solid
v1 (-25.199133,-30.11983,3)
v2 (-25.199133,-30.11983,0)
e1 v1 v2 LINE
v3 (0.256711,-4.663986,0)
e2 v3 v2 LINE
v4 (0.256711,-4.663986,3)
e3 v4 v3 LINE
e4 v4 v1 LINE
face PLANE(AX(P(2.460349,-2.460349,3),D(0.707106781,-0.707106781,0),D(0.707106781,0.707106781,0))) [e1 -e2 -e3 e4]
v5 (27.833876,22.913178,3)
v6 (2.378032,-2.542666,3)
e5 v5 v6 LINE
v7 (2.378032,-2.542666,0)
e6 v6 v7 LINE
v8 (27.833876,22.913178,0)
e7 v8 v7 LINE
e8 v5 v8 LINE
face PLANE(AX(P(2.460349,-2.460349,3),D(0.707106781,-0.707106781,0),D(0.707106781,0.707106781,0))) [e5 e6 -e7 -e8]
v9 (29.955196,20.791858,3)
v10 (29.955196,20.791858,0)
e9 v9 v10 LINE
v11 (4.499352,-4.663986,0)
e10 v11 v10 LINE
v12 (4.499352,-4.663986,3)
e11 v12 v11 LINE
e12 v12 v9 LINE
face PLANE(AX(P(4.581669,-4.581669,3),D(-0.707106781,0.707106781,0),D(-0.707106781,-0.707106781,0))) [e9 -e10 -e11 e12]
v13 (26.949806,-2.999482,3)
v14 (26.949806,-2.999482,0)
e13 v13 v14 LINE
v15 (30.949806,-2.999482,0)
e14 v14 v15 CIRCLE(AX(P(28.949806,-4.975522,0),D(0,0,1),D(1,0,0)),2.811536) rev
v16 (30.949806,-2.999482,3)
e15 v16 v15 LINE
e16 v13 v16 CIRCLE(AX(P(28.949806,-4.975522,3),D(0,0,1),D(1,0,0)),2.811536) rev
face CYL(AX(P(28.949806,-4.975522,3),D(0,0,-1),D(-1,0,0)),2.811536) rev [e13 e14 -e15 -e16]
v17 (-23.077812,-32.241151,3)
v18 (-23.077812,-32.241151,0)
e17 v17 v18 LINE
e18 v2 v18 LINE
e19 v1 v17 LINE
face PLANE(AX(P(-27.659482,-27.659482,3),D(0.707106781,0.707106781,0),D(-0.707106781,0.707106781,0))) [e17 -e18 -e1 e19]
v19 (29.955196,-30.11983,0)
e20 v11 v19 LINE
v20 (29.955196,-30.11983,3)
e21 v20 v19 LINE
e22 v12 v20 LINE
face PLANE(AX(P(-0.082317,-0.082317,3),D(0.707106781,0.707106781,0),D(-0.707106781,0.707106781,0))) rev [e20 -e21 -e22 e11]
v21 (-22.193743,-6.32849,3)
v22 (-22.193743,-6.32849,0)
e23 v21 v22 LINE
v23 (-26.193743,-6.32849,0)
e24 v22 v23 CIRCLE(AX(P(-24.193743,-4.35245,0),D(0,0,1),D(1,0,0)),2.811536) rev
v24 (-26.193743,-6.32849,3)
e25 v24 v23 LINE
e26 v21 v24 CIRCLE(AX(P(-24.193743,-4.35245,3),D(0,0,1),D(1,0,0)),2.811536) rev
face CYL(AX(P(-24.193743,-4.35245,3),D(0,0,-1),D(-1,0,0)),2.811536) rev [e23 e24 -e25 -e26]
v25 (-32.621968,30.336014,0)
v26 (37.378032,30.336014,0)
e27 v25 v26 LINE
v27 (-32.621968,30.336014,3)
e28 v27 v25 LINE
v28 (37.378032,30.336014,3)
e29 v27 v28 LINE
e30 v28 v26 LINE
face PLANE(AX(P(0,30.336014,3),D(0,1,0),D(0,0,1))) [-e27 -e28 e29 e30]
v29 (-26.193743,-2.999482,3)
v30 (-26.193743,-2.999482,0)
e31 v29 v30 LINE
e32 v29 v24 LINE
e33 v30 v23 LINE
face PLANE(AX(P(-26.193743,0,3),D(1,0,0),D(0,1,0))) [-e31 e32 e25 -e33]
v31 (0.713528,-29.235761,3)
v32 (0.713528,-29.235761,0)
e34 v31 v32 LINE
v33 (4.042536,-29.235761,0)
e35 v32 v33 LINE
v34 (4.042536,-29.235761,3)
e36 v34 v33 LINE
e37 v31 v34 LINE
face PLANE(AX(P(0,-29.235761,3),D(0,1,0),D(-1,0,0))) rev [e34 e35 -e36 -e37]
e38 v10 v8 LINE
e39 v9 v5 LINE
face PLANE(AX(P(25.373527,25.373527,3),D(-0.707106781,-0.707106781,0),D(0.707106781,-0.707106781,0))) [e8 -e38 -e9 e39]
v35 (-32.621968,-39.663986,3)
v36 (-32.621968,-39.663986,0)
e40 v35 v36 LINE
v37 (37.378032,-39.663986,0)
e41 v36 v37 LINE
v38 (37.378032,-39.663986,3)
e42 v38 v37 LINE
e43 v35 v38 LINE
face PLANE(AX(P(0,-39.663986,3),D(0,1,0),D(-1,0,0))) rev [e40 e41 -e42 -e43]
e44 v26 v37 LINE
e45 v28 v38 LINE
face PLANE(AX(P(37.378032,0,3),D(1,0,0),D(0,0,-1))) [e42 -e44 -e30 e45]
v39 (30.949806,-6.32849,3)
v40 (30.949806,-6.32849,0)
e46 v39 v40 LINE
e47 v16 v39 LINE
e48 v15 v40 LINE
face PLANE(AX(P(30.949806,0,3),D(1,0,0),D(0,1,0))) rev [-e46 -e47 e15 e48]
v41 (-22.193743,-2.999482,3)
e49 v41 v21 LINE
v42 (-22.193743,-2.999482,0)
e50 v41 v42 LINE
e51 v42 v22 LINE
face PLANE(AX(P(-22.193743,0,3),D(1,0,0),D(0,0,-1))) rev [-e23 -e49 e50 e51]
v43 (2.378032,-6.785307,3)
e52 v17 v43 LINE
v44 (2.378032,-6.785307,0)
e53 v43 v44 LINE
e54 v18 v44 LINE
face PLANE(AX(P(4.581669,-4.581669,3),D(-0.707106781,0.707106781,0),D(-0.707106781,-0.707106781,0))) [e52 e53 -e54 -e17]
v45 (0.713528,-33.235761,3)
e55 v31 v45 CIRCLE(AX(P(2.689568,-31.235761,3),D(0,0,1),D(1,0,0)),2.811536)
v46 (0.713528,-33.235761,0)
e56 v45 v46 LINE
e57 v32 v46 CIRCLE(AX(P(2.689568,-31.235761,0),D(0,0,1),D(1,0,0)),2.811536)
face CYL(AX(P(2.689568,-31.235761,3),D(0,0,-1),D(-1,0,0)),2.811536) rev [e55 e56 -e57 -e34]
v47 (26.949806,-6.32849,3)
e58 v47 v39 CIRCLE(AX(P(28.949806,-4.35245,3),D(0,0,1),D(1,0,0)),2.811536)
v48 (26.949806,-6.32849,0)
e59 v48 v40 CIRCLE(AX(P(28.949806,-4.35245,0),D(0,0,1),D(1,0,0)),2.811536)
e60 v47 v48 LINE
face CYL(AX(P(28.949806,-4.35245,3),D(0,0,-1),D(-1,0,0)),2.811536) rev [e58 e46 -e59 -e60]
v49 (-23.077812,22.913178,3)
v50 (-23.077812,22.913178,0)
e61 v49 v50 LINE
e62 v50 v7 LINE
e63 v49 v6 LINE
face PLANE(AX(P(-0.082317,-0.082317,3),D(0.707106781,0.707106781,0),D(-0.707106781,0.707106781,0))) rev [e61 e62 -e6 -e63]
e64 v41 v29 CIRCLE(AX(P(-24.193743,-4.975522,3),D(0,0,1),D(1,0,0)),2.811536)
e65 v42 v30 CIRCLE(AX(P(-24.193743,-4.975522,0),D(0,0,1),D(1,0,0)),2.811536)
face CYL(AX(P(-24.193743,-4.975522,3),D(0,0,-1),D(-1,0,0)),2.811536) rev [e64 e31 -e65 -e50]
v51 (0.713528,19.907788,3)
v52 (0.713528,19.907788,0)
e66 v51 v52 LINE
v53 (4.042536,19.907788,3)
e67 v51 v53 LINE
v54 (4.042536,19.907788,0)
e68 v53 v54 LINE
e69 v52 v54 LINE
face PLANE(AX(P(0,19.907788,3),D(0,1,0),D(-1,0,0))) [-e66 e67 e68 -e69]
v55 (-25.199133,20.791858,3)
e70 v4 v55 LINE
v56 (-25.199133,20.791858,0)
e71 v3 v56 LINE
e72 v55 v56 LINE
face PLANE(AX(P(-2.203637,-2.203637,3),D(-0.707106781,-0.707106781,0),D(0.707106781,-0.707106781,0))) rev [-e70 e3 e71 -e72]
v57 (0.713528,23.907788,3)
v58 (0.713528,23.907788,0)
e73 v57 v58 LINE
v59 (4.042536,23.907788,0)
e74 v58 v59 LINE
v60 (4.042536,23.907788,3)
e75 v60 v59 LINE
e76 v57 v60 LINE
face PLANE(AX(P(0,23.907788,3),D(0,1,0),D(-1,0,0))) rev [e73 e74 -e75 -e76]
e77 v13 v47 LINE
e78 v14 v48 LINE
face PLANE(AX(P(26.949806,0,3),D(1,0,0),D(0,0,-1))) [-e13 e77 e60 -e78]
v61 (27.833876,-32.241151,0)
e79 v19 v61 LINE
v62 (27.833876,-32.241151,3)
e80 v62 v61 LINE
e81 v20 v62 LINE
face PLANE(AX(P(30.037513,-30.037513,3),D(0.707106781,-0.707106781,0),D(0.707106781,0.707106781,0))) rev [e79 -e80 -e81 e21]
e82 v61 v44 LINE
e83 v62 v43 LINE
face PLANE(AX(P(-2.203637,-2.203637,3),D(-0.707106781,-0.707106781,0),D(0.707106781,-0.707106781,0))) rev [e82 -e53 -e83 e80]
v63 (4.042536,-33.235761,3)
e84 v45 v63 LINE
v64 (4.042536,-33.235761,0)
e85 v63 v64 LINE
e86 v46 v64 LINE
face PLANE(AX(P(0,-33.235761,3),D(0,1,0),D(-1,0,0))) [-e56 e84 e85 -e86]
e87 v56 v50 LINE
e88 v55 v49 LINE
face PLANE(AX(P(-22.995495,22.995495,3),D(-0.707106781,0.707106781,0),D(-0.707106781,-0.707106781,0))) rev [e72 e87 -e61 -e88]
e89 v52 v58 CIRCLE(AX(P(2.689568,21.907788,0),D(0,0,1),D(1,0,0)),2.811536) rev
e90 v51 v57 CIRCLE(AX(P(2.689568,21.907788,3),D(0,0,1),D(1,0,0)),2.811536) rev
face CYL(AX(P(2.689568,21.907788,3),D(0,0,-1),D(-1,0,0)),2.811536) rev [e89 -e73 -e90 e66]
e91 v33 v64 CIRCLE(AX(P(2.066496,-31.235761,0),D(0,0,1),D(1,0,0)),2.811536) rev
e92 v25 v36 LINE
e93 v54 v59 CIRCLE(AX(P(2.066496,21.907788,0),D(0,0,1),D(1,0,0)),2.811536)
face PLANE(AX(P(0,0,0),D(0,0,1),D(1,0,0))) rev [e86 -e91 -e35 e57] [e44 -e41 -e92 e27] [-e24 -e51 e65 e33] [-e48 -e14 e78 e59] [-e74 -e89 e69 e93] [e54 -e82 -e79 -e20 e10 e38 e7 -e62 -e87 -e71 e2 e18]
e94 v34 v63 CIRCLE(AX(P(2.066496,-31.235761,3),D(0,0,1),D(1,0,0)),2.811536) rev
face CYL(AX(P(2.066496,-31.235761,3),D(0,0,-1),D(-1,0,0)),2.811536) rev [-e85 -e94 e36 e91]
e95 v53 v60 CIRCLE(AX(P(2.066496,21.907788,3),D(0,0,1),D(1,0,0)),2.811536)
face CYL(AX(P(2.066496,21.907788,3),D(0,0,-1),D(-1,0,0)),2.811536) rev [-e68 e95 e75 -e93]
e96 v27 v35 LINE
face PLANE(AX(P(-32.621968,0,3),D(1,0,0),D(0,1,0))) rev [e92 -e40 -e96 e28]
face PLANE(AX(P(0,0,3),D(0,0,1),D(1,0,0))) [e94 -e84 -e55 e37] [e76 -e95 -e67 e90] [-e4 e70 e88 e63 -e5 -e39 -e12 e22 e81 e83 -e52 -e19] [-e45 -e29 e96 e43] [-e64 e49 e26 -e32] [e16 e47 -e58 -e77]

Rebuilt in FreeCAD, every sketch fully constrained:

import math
import FreeCAD as App
import Part
import Sketcher
Q = App.Units.Quantity


def add_polygon(sketch, points):
    """Adds a closed chain of lines whose ends are joined by coincident constraints."""
    first, n = sketch.GeometryCount, len(points)
    for a, b in zip(points, points[1:] + points[:1]):
        sketch.addGeometry(Part.LineSegment(App.Vector(*a, 0), App.Vector(*b, 0)), False)
    for i in range(n):
        sketch.addConstraint(Sketcher.Constraint("Coincident", first + i, 2, first + (i + 1) % n, 1))

doc = App.newDocument("Part")
body = doc.addObject("PartDesign::Body", "Body")

# Sketch on XY plane
sketch1 = body.newObject("Sketcher::SketchObject", "Sketch")
sketch1.AttachmentSupport = (doc.getObject("XY_Plane"), [""])
sketch1.MapMode = "FlatFace"
add_polygon(sketch1, [(-32.6, 30.3), (-32.6, -39.7), (37.4, -39.7), (37.4, 30.3)])  # lines 0-3
sketch1.addGeometry(Part.ArcOfCircle(Part.Circle(App.Vector(2.1, -31.2, 0), App.Vector(0, 0, 1), 2.8), math.radians(-45), math.radians(45)), False)  # 4
sketch1.addGeometry(Part.LineSegment(App.Vector(4, -33.2, 0), App.Vector(0.7, -33.2, 0)), False)  # 5
sketch1.addGeometry(Part.ArcOfCircle(Part.Circle(App.Vector(2.7, -31.2, 0), App.Vector(0, 0, 1), 2.8), math.radians(135), math.radians(225)), False)  # 6
sketch1.addGeometry(Part.LineSegment(App.Vector(0.7, -29.2, 0), App.Vector(4, -29.2, 0)), False)  # 7
add_polygon(sketch1, [(-25.2, -30.1), (0.3, -4.7), (-25.2, 20.8), (-23.1, 22.9), (2.4, -2.5), (27.8, 22.9), (30, 20.8), (4.5, -4.7), (30, -30.1), (27.8, -32.2), (2.4, -6.8), (-23.1, -32.2)])  # lines 8-19
sketch1.addGeometry(Part.LineSegment(App.Vector(-26.2, -6.3, 0), App.Vector(-26.2, -3, 0)), False)  # 20
sketch1.addGeometry(Part.ArcOfCircle(Part.Circle(App.Vector(-24.2, -5, 0), App.Vector(0, 0, 1), 2.8), math.radians(45), math.radians(135)), False)  # 21
sketch1.addGeometry(Part.LineSegment(App.Vector(-22.2, -3, 0), App.Vector(-22.2, -6.3, 0)), False)  # 22
sketch1.addGeometry(Part.ArcOfCircle(Part.Circle(App.Vector(-24.2, -4.4, 0), App.Vector(0, 0, 1), 2.8), math.radians(-135), math.radians(-45)), False)  # 23
sketch1.addGeometry(Part.LineSegment(App.Vector(4, 19.9, 0), App.Vector(0.7, 19.9, 0)), False)  # 24
sketch1.addGeometry(Part.ArcOfCircle(Part.Circle(App.Vector(2.7, 21.9, 0), App.Vector(0, 0, 1), 2.8), math.radians(135), math.radians(225)), False)  # 25
sketch1.addGeometry(Part.LineSegment(App.Vector(0.7, 23.9, 0), App.Vector(4, 23.9, 0)), False)  # 26
sketch1.addGeometry(Part.ArcOfCircle(Part.Circle(App.Vector(2.1, 21.9, 0), App.Vector(0, 0, 1), 2.8), math.radians(-45), math.radians(45)), False)  # 27
sketch1.addGeometry(Part.ArcOfCircle(Part.Circle(App.Vector(28.9, -4.4, 0), App.Vector(0, 0, 1), 2.8), math.radians(-135), math.radians(-45)), False)  # 28
sketch1.addGeometry(Part.LineSegment(App.Vector(26.9, -6.3, 0), App.Vector(26.9, -3, 0)), False)  # 29
sketch1.addGeometry(Part.ArcOfCircle(Part.Circle(App.Vector(28.9, -5, 0), App.Vector(0, 0, 1), 2.8), math.radians(45), math.radians(135)), False)  # 30
sketch1.addGeometry(Part.LineSegment(App.Vector(30.9, -3, 0), App.Vector(30.9, -6.3, 0)), False)  # 31
sketch1.addConstraint(Sketcher.Constraint("Coincident", 4, 1, 5, 1))
sketch1.addConstraint(Sketcher.Constraint("Coincident", 5, 2, 6, 2))
sketch1.addConstraint(Sketcher.Constraint("Coincident", 6, 1, 7, 1))
sketch1.addConstraint(Sketcher.Constraint("Coincident", 7, 2, 4, 2))
sketch1.addConstraint(Sketcher.Constraint("Coincident", 20, 2, 21, 2))
sketch1.addConstraint(Sketcher.Constraint("Coincident", 21, 1, 22, 1))
sketch1.addConstraint(Sketcher.Constraint("Coincident", 22, 2, 23, 2))
sketch1.addConstraint(Sketcher.Constraint("Coincident", 23, 1, 20, 1))
sketch1.addConstraint(Sketcher.Constraint("Coincident", 24, 2, 25, 2))
sketch1.addConstraint(Sketcher.Constraint("Coincident", 25, 1, 26, 1))
sketch1.addConstraint(Sketcher.Constraint("Coincident", 26, 2, 27, 2))
sketch1.addConstraint(Sketcher.Constraint("Coincident", 27, 1, 24, 1))
sketch1.addConstraint(Sketcher.Constraint("Coincident", 28, 1, 29, 1))
sketch1.addConstraint(Sketcher.Constraint("Coincident", 29, 2, 30, 2))
sketch1.addConstraint(Sketcher.Constraint("Coincident", 30, 1, 31, 1))
sketch1.addConstraint(Sketcher.Constraint("Coincident", 31, 2, 28, 2))
sketch1.addConstraint(Sketcher.Constraint("Vertical", 0))
sketch1.addConstraint(Sketcher.Constraint("Horizontal", 1))
sketch1.addConstraint(Sketcher.Constraint("Vertical", 2))
sketch1.addConstraint(Sketcher.Constraint("Horizontal", 3))
sketch1.addConstraint(Sketcher.Constraint("Horizontal", 5))
sketch1.addConstraint(Sketcher.Constraint("Horizontal", 7))
sketch1.addConstraint(Sketcher.Constraint("Vertical", 20))
sketch1.addConstraint(Sketcher.Constraint("Vertical", 22))
sketch1.addConstraint(Sketcher.Constraint("Horizontal", 24))
sketch1.addConstraint(Sketcher.Constraint("Horizontal", 26))
sketch1.addConstraint(Sketcher.Constraint("Vertical", 29))
sketch1.addConstraint(Sketcher.Constraint("Vertical", 31))
sketch1.addConstraint(Sketcher.Constraint("Equal", 4, 6))
sketch1.addConstraint(Sketcher.Constraint("Equal", 6, 21))
sketch1.addConstraint(Sketcher.Constraint("Equal", 21, 23))
sketch1.addConstraint(Sketcher.Constraint("Equal", 23, 25))
sketch1.addConstraint(Sketcher.Constraint("Equal", 25, 27))
sketch1.addConstraint(Sketcher.Constraint("Equal", 27, 28))
sketch1.addConstraint(Sketcher.Constraint("Equal", 28, 30))
sketch1.addConstraint(Sketcher.Constraint("Perpendicular", 8, 9))
sketch1.addConstraint(Sketcher.Constraint("Perpendicular", 9, 10))
sketch1.addConstraint(Sketcher.Constraint("Perpendicular", 10, 11))
sketch1.addConstraint(Sketcher.Constraint("Perpendicular", 11, 12))
sketch1.addConstraint(Sketcher.Constraint("Perpendicular", 12, 13))
sketch1.addConstraint(Sketcher.Constraint("Perpendicular", 13, 14))
sketch1.addConstraint(Sketcher.Constraint("Perpendicular", 14, 15))
sketch1.addConstraint(Sketcher.Constraint("Perpendicular", 15, 16))
sketch1.addConstraint(Sketcher.Constraint("Perpendicular", 16, 17))
sketch1.addConstraint(Sketcher.Constraint("Perpendicular", 17, 18))
sketch1.addConstraint(Sketcher.Constraint("Perpendicular", 18, 19))
sketch1.addConstraint(Sketcher.Constraint("Horizontal", 4, 3, 6, 3))
sketch1.addConstraint(Sketcher.Constraint("Horizontal", 25, 3, 27, 3))
sketch1.addConstraint(Sketcher.Constraint("Horizontal", 23, 3, 28, 3))
sketch1.addConstraint(Sketcher.Constraint("Horizontal", 21, 3, 30, 3))
sketch1.addConstraint(Sketcher.Constraint("Horizontal", 10, 2, 12, 2))
sketch1.addConstraint(Sketcher.Constraint("Horizontal", 9, 2, 13, 2))
sketch1.addConstraint(Sketcher.Constraint("Horizontal", 8, 2, 14, 2))
sketch1.addConstraint(Sketcher.Constraint("Horizontal", 16, 2, 18, 2))
sketch1.addConstraint(Sketcher.Constraint("Horizontal", 15, 2, 19, 2))
sketch1.addConstraint(Sketcher.Constraint("Horizontal", 20, 2, 21, 1))
sketch1.addConstraint(Sketcher.Constraint("Horizontal", 22, 2, 23, 1))
sketch1.addConstraint(Sketcher.Constraint("Horizontal", 23, 1, 28, 1))
sketch1.addConstraint(Sketcher.Constraint("Horizontal", 21, 1, 29, 2))
sketch1.addConstraint(Sketcher.Constraint("Horizontal", 29, 2, 30, 1))
sketch1.addConstraint(Sketcher.Constraint("Vertical", 6, 3, 25, 3))
sketch1.addConstraint(Sketcher.Constraint("Vertical", 4, 3, 27, 3))
sketch1.addConstraint(Sketcher.Constraint("Vertical", 5, 2, 6, 1))
sketch1.addConstraint(Sketcher.Constraint("Vertical", 13, 2, 15, 2))
sketch1.addConstraint(Sketcher.Constraint("Vertical", 12, 2, 16, 2))
sketch1.addConstraint(Sketcher.Constraint("Vertical", 11, 2, 17, 2))
sketch1.addConstraint(Sketcher.Constraint("Vertical", 6, 1, 24, 2))
sketch1.addConstraint(Sketcher.Constraint("Vertical", 24, 2, 25, 1))
sketch1.addConstraint(Sketcher.Constraint("Equal", 3, 0))
sketch1.addConstraint(Sketcher.Constraint("Equal", 26, 20))
sketch1.addConstraint(Sketcher.Constraint("Equal", 9, 11))
sketch1.addConstraint(Sketcher.Constraint("DistanceX", 1, 1, 1, 2, Q("70 mm")))
sketch1.addConstraint(Sketcher.Constraint("Distance", 8, Q("36 mm")))
sketch1.addConstraint(Sketcher.Constraint("Distance", 10, Q("3 mm")))
sketch1.addConstraint(Sketcher.Constraint("DistanceY", 4, 1, 6, 3, Q("2 mm")))
sketch1.addConstraint(Sketcher.Constraint("DistanceX", 20, 2, 23, 3, Q("2 mm")))
sketch1.addConstraint(Sketcher.Constraint("Radius", 4, Q("2.811536 mm")))
sketch1.addConstraint(Sketcher.Constraint("DistanceX", 5, 2, 5, 1, Q("3.329008 mm")))
sketch1.addConstraint(Sketcher.Constraint("DistanceX", 9, 2, 25, 3, Q("27.888701 mm")))
sketch1.addConstraint(Sketcher.Constraint("DistanceY", 30, 3, 12, 2, Q("27.888701 mm")))
sketch1.addConstraint(Sketcher.Constraint("DistanceY", 4, 3, -1, 1, Q("31.235761 mm")))
sketch1.addConstraint(Sketcher.Constraint("DistanceY", 23, 3, -1, 1, Q("4.35245 mm")))
sketch1.addConstraint(Sketcher.Constraint("DistanceY", -1, 1, 25, 3, Q("21.907788 mm")))
sketch1.addConstraint(Sketcher.Constraint("DistanceX", 0, 2, -1, 1, Q("32.621968 mm")))
sketch1.addConstraint(Sketcher.Constraint("DistanceX", -1, 1, 8, 2, Q("0.256711 mm")))
sketch1.addConstraint(Sketcher.Constraint("DistanceX", 21, 3, 4, 3, Q("26.260239 mm")))
sketch1.addConstraint(Sketcher.Constraint("DistanceX", 25, 3, 28, 3, Q("26.260239 mm")))
sketch1.addConstraint(Sketcher.Constraint("DistanceY", 0, 2, -1, 1, Q("39.663986 mm")))
pad1 = body.newObject("PartDesign::Pad", "Pad")
pad1.Profile = sketch1
pad1.Length = 3

doc.recompute()
